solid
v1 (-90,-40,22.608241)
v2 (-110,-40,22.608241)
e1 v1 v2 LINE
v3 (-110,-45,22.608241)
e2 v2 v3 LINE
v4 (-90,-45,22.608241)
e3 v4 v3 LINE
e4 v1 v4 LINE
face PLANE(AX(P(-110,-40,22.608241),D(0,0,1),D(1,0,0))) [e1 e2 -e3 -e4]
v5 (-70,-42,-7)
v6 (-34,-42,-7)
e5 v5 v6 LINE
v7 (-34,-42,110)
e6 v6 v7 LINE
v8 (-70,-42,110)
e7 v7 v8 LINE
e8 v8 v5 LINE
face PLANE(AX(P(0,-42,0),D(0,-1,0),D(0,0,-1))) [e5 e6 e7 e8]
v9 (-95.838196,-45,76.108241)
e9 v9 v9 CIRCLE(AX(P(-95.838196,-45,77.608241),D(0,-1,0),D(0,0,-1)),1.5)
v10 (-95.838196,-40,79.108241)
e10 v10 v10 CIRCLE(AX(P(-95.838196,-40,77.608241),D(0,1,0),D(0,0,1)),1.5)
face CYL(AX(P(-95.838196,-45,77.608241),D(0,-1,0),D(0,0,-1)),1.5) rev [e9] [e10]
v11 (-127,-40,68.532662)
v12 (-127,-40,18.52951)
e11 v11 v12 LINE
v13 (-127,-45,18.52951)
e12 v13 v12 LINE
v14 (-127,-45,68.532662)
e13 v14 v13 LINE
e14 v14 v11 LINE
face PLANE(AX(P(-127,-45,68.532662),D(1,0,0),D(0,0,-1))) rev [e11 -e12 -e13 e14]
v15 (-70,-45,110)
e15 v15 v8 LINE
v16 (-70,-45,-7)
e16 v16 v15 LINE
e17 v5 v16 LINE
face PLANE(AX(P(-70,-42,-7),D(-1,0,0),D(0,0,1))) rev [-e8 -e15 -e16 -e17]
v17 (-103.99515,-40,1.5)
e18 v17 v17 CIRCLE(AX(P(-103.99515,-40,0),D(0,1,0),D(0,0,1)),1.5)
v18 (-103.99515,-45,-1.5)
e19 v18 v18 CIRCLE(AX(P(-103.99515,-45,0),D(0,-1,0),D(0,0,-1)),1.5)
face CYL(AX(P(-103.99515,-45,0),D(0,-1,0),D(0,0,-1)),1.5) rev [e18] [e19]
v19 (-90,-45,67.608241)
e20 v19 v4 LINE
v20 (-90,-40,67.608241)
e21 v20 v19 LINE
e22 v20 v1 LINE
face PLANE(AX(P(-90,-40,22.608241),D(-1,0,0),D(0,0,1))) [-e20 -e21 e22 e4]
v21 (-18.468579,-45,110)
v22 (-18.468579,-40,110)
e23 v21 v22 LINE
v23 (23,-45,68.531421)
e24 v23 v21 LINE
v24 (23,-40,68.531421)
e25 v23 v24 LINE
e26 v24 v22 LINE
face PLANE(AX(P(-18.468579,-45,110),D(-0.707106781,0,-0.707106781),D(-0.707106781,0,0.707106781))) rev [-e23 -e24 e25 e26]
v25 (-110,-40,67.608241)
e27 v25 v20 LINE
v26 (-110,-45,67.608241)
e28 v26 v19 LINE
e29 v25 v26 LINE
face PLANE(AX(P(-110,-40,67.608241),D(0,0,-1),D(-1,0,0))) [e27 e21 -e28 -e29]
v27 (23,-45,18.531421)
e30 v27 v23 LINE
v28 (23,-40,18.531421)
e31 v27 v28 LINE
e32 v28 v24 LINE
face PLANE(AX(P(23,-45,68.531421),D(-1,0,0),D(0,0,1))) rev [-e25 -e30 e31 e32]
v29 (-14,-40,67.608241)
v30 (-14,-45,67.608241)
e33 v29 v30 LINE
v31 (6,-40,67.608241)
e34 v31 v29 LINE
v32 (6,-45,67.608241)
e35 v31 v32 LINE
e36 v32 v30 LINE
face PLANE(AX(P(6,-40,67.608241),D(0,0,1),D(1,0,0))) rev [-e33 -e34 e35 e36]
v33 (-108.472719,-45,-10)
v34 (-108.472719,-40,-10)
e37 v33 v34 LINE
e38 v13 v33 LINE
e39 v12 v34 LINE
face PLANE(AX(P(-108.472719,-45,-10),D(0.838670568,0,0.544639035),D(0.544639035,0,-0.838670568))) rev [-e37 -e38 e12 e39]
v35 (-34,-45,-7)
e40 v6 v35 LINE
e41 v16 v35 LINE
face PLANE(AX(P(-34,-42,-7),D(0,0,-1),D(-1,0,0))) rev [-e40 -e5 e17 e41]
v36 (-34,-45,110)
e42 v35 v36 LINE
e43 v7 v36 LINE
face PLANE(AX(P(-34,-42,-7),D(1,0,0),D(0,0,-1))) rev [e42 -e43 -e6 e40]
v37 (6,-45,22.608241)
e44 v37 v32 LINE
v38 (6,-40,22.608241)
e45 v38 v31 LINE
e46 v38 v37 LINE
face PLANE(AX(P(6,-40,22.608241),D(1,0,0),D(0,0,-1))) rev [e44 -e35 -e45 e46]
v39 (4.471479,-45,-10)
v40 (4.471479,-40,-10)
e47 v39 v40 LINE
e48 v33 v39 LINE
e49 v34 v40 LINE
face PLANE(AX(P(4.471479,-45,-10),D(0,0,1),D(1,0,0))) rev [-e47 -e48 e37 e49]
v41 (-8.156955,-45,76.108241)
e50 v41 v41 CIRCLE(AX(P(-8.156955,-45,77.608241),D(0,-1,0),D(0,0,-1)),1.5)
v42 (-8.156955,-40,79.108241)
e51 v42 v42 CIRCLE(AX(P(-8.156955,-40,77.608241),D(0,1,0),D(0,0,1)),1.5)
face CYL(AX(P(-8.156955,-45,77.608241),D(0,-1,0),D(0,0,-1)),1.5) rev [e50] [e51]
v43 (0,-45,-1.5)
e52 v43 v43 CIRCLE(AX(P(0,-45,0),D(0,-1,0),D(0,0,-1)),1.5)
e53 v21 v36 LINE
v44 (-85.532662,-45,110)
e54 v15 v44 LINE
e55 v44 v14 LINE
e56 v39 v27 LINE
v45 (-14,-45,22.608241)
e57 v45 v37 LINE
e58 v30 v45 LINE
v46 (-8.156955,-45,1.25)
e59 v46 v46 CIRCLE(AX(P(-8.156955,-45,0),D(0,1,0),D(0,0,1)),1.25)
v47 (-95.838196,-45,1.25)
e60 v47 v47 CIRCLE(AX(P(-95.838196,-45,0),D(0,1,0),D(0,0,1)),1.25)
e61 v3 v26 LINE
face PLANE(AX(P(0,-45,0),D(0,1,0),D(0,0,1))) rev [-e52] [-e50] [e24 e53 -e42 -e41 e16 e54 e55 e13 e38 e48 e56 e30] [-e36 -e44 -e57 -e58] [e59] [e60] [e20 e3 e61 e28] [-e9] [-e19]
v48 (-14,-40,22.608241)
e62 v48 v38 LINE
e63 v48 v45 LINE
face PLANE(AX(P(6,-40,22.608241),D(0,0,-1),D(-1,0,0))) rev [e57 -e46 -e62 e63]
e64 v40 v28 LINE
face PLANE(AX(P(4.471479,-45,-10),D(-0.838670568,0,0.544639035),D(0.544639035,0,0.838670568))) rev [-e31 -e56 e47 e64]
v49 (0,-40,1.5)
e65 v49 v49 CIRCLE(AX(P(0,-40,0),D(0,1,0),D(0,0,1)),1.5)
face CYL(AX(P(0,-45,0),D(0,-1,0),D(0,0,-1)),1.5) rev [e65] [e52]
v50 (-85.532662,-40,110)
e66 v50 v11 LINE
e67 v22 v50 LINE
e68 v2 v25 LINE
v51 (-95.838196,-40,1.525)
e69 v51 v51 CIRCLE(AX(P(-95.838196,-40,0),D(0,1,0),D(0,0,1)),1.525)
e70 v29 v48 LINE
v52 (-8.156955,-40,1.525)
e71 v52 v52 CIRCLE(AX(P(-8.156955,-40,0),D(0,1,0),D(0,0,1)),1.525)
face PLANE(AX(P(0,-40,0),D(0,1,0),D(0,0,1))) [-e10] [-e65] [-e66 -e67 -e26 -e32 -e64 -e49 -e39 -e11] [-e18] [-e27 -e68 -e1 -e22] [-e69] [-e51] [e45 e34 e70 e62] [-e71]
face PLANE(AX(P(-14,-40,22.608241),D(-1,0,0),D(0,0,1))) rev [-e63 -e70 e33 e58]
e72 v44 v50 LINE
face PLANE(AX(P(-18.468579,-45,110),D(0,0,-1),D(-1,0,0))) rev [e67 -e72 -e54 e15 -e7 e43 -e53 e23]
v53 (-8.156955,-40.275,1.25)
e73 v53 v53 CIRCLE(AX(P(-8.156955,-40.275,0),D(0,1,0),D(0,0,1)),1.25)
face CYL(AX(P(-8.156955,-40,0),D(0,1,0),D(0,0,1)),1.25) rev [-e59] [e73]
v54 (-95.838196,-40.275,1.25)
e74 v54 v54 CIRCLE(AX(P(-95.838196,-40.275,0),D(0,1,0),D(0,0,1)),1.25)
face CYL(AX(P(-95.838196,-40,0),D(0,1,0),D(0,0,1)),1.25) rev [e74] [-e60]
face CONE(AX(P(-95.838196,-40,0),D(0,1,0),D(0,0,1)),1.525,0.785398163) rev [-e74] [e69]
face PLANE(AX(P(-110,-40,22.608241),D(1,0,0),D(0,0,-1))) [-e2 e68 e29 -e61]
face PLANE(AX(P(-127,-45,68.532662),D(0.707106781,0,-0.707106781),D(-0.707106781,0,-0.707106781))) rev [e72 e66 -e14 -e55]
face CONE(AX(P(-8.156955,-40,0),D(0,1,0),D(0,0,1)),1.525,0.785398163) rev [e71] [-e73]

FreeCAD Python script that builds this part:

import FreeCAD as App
import Part
import Sketcher
from FreeCAD import Vector
Q = App.Units.Quantity


def add_polygon(sketch, points):
    """Adds a closed chain of lines whose ends are joined by coincident constraints."""
    first, n = sketch.GeometryCount, len(points)
    for a, b in zip(points, points[1:] + points[:1]):
        sketch.addGeometry(Part.LineSegment(App.Vector(*a, 0), App.Vector(*b, 0)), False)
    for i in range(n):
        sketch.addConstraint(Sketcher.Constraint("Coincident", first + i, 2, first + (i + 1) % n, 1))

doc = App.newDocument("Part")
body = doc.addObject("PartDesign::Body", "Body")

sketch1 = body.newObject("Sketcher::SketchObject", "Sketch")
sketch1.AttachmentSupport = (doc.getObject("XZ_Plane"), [""])
sketch1.MapMode = "FlatFace"
sketch1.AttachmentOffset = App.Placement(Vector(0, 0, 40), App.Rotation())
add_polygon(sketch1, [(-18.468579, 110), (-85.532662, 110), (-127, 68.532662), (-127, 18.52951), (-108.472719, -10), (4.471479, -10), (23, 18.531421), (23, 68.531421)])
sketch1.addConstraint([
    Sketcher.Constraint("Horizontal", 0),
    Sketcher.Constraint("Vertical", 2),
    Sketcher.Constraint("Horizontal", 4),
    Sketcher.Constraint("Vertical", 6),
    Sketcher.Constraint("Perpendicular", 1, 7),
    Sketcher.Constraint("DistanceY", 6, 1, 6, 2, 50.0),
    Sketcher.Constraint("Angle", 1, Q("-135 deg")),
    Sketcher.Constraint("Angle", 3, Q("-57 deg")),
    Sketcher.Constraint("Angle", 5, Q("57 deg")),
    Sketcher.Constraint("DistanceY", -1, 1, 0, 2, 110.0),
    Sketcher.Constraint("DistanceX", 1, 2, -1, 1, 127.0),
    Sketcher.Constraint("DistanceY", 3, 2, -1, 1, 10.0),
    Sketcher.Constraint("DistanceX", -1, 1, 5, 2, 23.0),
    Sketcher.Constraint("DistanceX", 4, 1, 4, 2, 112.944198),
    Sketcher.Constraint("DistanceY", 2, 2, 2, 1, 50.003152),
    Sketcher.Constraint("Distance", 3, 34.017541),
])
pad1 = body.newObject("PartDesign::Pad", "Pad")
pad1.Profile = sketch1
pad1.Length = 5

sketch2 = body.newObject("Sketcher::SketchObject", "Sketch001")
sketch2.AttachmentSupport = (doc.getObject("XZ_Plane"), [""])
sketch2.MapMode = "FlatFace"
sketch2.AttachmentOffset = App.Placement(Vector(0, 0, 45), App.Rotation())
sketch2.addGeometry([
    Part.Circle(Vector(-8.156955, 77.608241, 0), Vector(0, 0, 1), 1.5),
    Part.Circle(Vector(-95.838196, 77.608241, 0), Vector(0, 0, 1), 1.5),
    Part.Circle(Vector(-103.99515, 0, 0), Vector(0, 0, 1), 1.5),
    Part.Circle(Vector(0, 0, 0), Vector(0, 0, 1), 1.5),
], False)
sketch2.addConstraint([
    Sketcher.Constraint("Coincident", 3, 3, -1, 1),
    Sketcher.Constraint("Equal", 0, 1),
    Sketcher.Constraint("Equal", 1, 2),
    Sketcher.Constraint("Equal", 2, 3),
    Sketcher.Constraint("PointOnObject", 2, 3, -1),
    Sketcher.Constraint("Horizontal", 0, 3, 1, 3),
    Sketcher.Constraint("Diameter", 0, 3.0),
    Sketcher.Constraint("DistanceY", -1, 1, 0, 3, 77.608241),
    Sketcher.Constraint("DistanceX", 2, 3, -1, 1, 103.99515),
    Sketcher.Constraint("DistanceX", 1, 3, 0, 3, 87.681241),
    Sketcher.Constraint("DistanceX", 0, 3, -1, 1, 8.156955),
])
doc.recompute()
hole = body.newObject("PartDesign::Hole", "Hole")
hole.Profile = sketch2
hole.ThreadType = "None"
hole.Diameter = 3
hole.DepthType = "Dimension"
hole.Depth = 6
hole.DrillPoint = "Angled"
hole.DrillPointAngle = 118

sketch3 = body.newObject("Sketcher::SketchObject", "Sketch002")
sketch3.AttachmentSupport = (doc.getObject("XZ_Plane"), [""])
sketch3.MapMode = "FlatFace"
sketch3.AttachmentOffset = App.Placement(Vector(0, 0, 45), App.Rotation())
add_polygon(sketch3, [(-34, -7), (-34, 117), (-70, 117), (-70, -7)])
sketch3.addConstraint([
    Sketcher.Constraint("Vertical", 0),
    Sketcher.Constraint("Horizontal", 1),
    Sketcher.Constraint("Vertical", 2),
    Sketcher.Constraint("Horizontal", 3),
    Sketcher.Constraint("DistanceX", 1, 2, 1, 1, 36.0),
    Sketcher.Constraint("DistanceY", 0, 1, 0, 2, 124.0),
    Sketcher.Constraint("DistanceX", 0, 2, -1, 1, 34.0),
    Sketcher.Constraint("DistanceY", -1, 1, 0, 2, 117.0),
])
pocket1 = body.newObject("PartDesign::Pocket", "Pocket")
pocket1.Profile = sketch3
pocket1.Length = 3

sketch4 = body.newObject("Sketcher::SketchObject", "Sketch003")
sketch4.AttachmentSupport = (doc.getObject("XZ_Plane"), [""])
sketch4.MapMode = "FlatFace"
sketch4.AttachmentOffset = App.Placement(Vector(0, 0, 45), App.Rotation())
add_polygon(sketch4, [(6, 22.608241), (6, 67.608241), (-14, 67.608241), (-14, 22.608241)])
sketch4.addConstraint([
    Sketcher.Constraint("Vertical", 0),
    Sketcher.Constraint("Horizontal", 1),
    Sketcher.Constraint("Vertical", 2),
    Sketcher.Constraint("Horizontal", 3),
    Sketcher.Constraint("DistanceX", 1, 2, 1, 1, 20.0),
    Sketcher.Constraint("DistanceY", 0, 1, 0, 2, 45.0),
    Sketcher.Constraint("DistanceX", -1, 1, 0, 2, 6.0),
    Sketcher.Constraint("DistanceY", -1, 1, 0, 2, 67.608241),
])
pocket2 = body.newObject("PartDesign::Pocket", "Pocket001")
pocket2.Profile = sketch4
pocket2.Type = "ThroughAll"
doc.recompute()

datumplane = body.newObject("PartDesign::Plane", "DatumPlane")
datumplane.AttachmentSupport = (doc.getObject("YZ_Plane"), [""])
datumplane.MapMode = "FlatFace"
datumplane.AttachmentOffset = App.Placement(Vector(0, 0, -52), App.Rotation())
mirrored = body.newObject("PartDesign::Mirrored", "Mirrored")
mirrored.Originals = [pocket2]
mirrored.MirrorPlane = (datumplane, [""])
body.Tip = mirrored

sketch5 = body.newObject("Sketcher::SketchObject", "Sketch004")
sketch5.AttachmentSupport = (doc.getObject("XZ_Plane"), [""])
sketch5.MapMode = "FlatFace"
sketch5.AttachmentOffset = App.Placement(Vector(0, 0, 40), App.Rotation())
sketch5.addGeometry([
    Part.Circle(Vector(-8.156955, 0, 0), Vector(0, 0, 1), 1.25),
    Part.Circle(Vector(-95.838196, 0, 0), Vector(0, 0, 1), 1.25),
], False)
sketch5.addConstraint([
    Sketcher.Constraint("Equal", 0, 1),
    Sketcher.Constraint("PointOnObject", 0, 3, -1),
    Sketcher.Constraint("PointOnObject", 1, 3, -1),
    Sketcher.Constraint("Diameter", 0, 2.5),
    Sketcher.Constraint("DistanceX", 1, 3, 0, 3, 87.681241),
    Sketcher.Constraint("DistanceX", 0, 3, -1, 1, 8.156955),
])
doc.recompute()
hole2 = body.newObject("PartDesign::Hole", "Hole001")
hole2.Profile = sketch5
hole2.ThreadType = "None"
hole2.Diameter = 2.5
hole2.DepthType = "Dimension"
hole2.Depth = 5
hole2.DrillPoint = "Flat"
hole2.HoleCutType = "Countersink"
hole2.HoleCutDiameter = 3.05
hole2.HoleCutCountersinkAngle = 90
hole2.Reversed = True

doc.recompute()
